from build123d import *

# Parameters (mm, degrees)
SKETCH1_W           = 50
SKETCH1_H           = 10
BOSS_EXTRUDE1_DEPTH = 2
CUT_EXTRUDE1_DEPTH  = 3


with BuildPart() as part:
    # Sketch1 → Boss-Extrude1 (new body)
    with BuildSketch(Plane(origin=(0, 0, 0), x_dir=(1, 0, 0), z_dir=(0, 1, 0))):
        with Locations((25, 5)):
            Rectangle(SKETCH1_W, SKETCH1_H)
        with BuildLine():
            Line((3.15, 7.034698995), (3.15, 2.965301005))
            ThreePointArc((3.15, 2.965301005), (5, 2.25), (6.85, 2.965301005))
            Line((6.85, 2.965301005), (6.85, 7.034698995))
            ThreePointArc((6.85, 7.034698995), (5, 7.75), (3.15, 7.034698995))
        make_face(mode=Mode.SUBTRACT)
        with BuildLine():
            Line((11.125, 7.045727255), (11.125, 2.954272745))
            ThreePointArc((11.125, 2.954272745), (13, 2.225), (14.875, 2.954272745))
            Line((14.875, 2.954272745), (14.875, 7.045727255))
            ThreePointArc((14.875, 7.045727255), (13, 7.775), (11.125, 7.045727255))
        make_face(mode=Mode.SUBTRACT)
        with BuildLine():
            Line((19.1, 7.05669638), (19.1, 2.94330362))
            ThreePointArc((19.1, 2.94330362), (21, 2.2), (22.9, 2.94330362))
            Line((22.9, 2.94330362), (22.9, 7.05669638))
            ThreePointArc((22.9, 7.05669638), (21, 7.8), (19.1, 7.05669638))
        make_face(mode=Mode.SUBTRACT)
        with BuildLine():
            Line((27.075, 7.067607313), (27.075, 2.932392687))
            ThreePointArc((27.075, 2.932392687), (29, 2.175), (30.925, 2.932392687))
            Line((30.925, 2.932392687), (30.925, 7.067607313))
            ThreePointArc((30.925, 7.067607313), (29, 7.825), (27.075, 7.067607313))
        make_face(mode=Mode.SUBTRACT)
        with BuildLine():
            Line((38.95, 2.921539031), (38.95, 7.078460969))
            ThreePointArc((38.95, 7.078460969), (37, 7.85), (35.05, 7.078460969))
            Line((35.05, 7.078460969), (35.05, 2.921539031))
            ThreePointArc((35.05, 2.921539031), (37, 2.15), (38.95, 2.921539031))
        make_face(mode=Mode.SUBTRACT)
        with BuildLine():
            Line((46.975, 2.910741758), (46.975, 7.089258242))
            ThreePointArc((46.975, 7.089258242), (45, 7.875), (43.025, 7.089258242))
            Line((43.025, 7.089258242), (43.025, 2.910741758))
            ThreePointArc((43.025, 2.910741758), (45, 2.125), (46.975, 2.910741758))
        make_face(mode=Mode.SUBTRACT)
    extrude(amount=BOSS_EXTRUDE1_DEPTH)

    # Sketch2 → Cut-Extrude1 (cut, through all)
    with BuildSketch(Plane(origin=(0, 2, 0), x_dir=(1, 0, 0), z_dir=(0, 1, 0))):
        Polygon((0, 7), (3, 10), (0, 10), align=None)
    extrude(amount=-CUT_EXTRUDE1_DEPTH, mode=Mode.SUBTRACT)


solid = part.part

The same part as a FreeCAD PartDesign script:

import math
import FreeCAD as App
import Part
import Sketcher


def add_polygon(sketch, points):
    """Adds a closed chain of lines whose ends are joined by coincident constraints."""
    first, n = sketch.GeometryCount, len(points)
    for a, b in zip(points, points[1:] + points[:1]):
        sketch.addGeometry(Part.LineSegment(App.Vector(*a, 0), App.Vector(*b, 0)), False)
    for i in range(n):
        sketch.addConstraint(Sketcher.Constraint("Coincident", first + i, 2, first + (i + 1) % n, 1))

doc = App.newDocument("Part")
body = doc.addObject("PartDesign::Body", "Body")

# Sketch on XZ plane
sketch1 = doc.addObject("Sketcher::SketchObject", "Sketch")
body.addObject(sketch1)
sketch1.AttachmentSupport = (doc.XZ_Plane, [""])
sketch1.MapMode = "FlatFace"
add_polygon(sketch1, [(0, -10), (0, 0), (50, 0), (50, -10)])  # lines 0-3
sketch1.addGeometry(Part.LineSegment(App.Vector(27.075, -2.932393, 0), App.Vector(27.075, -7.067607, 0)), False)  # 4
sketch1.addGeometry(Part.ArcOfCircle(Part.Circle(App.Vector(29, -5, 0), App.Vector(0, 0, 1), 2.825), math.radians(-132.954388), math.radians(-47.045612)), False)  # 5
sketch1.addGeometry(Part.LineSegment(App.Vector(30.925, -7.067607, 0), App.Vector(30.925, -2.932393, 0)), False)  # 6
sketch1.addGeometry(Part.ArcOfCircle(Part.Circle(App.Vector(29, -5, 0), App.Vector(0, 0, 1), 2.825), math.radians(47.045612), math.radians(132.954388)), False)  # 7
sketch1.addGeometry(Part.LineSegment(App.Vector(3.15, -2.965301, 0), App.Vector(3.15, -7.034699, 0)), False)  # 8
sketch1.addGeometry(Part.ArcOfCircle(Part.Circle(App.Vector(5, -5, 0), App.Vector(0, 0, 1), 2.75), math.radians(-132.277908), math.radians(-47.722092)), False)  # 9
sketch1.addGeometry(Part.LineSegment(App.Vector(6.85, -7.034699, 0), App.Vector(6.85, -2.965301, 0)), False)  # 10
sketch1.addGeometry(Part.ArcOfCircle(Part.Circle(App.Vector(5, -5, 0), App.Vector(0, 0, 1), 2.75), math.radians(47.722092), math.radians(132.277908)), False)  # 11
sketch1.addGeometry(Part.LineSegment(App.Vector(11.125, -2.954273, 0), App.Vector(11.125, -7.045727, 0)), False)  # 12
sketch1.addGeometry(Part.ArcOfCircle(Part.Circle(App.Vector(13, -5, 0), App.Vector(0, 0, 1), 2.775), math.radians(-132.506642), math.radians(-47.493358)), False)  # 13
sketch1.addGeometry(Part.LineSegment(App.Vector(14.875, -7.045727, 0), App.Vector(14.875, -2.954273, 0)), False)  # 14
sketch1.addGeometry(Part.ArcOfCircle(Part.Circle(App.Vector(13, -5, 0), App.Vector(0, 0, 1), 2.775), math.radians(47.493358), math.radians(132.506642)), False)  # 15
sketch1.addGeometry(Part.LineSegment(App.Vector(19.1, -2.943304, 0), App.Vector(19.1, -7.056696, 0)), False)  # 16
sketch1.addGeometry(Part.ArcOfCircle(Part.Circle(App.Vector(21, -5, 0), App.Vector(0, 0, 1), 2.8), math.radians(-132.73211), math.radians(-47.26789)), False)  # 17
sketch1.addGeometry(Part.LineSegment(App.Vector(22.9, -7.056696, 0), App.Vector(22.9, -2.943304, 0)), False)  # 18
sketch1.addGeometry(Part.ArcOfCircle(Part.Circle(App.Vector(21, -5, 0), App.Vector(0, 0, 1), 2.8), math.radians(47.26789), math.radians(132.73211)), False)  # 19
sketch1.addGeometry(Part.LineSegment(App.Vector(38.95, -7.078461, 0), App.Vector(38.95, -2.921539, 0)), False)  # 20
sketch1.addGeometry(Part.ArcOfCircle(Part.Circle(App.Vector(37, -5, 0), App.Vector(0, 0, 1), 2.85), math.radians(46.826449), math.radians(133.173551)), False)  # 21
sketch1.addGeometry(Part.LineSegment(App.Vector(35.05, -2.921539, 0), App.Vector(35.05, -7.078461, 0)), False)  # 22
sketch1.addGeometry(Part.ArcOfCircle(Part.Circle(App.Vector(37, -5, 0), App.Vector(0, 0, 1), 2.85), math.radians(-133.173551), math.radians(-46.826449)), False)  # 23
sketch1.addGeometry(Part.LineSegment(App.Vector(46.975, -7.089258, 0), App.Vector(46.975, -2.910742, 0)), False)  # 24
sketch1.addGeometry(Part.ArcOfCircle(Part.Circle(App.Vector(45, -5, 0), App.Vector(0, 0, 1), 2.875), math.radians(46.610329), math.radians(133.389671)), False)  # 25
sketch1.addGeometry(Part.LineSegment(App.Vector(43.025, -2.910742, 0), App.Vector(43.025, -7.089258, 0)), False)  # 26
sketch1.addGeometry(Part.ArcOfCircle(Part.Circle(App.Vector(45, -5, 0), App.Vector(0, 0, 1), 2.875), math.radians(-133.389671), math.radians(-46.610329)), False)  # 27
sketch1.addConstraint(Sketcher.Constraint("Coincident", 4, 2, 5, 1))
sketch1.addConstraint(Sketcher.Constraint("Coincident", 5, 2, 6, 1))
sketch1.addConstraint(Sketcher.Constraint("Coincident", 6, 2, 7, 1))
sketch1.addConstraint(Sketcher.Constraint("Coincident", 7, 2, 4, 1))
sketch1.addConstraint(Sketcher.Constraint("Coincident", 8, 2, 9, 1))
sketch1.addConstraint(Sketcher.Constraint("Coincident", 9, 2, 10, 1))
sketch1.addConstraint(Sketcher.Constraint("Coincident", 10, 2, 11, 1))
sketch1.addConstraint(Sketcher.Constraint("Coincident", 11, 2, 8, 1))
sketch1.addConstraint(Sketcher.Constraint("Coincident", 12, 2, 13, 1))
sketch1.addConstraint(Sketcher.Constraint("Coincident", 13, 2, 14, 1))
sketch1.addConstraint(Sketcher.Constraint("Coincident", 14, 2, 15, 1))
sketch1.addConstraint(Sketcher.Constraint("Coincident", 15, 2, 12, 1))
sketch1.addConstraint(Sketcher.Constraint("Coincident", 16, 2, 17, 1))
sketch1.addConstraint(Sketcher.Constraint("Coincident", 17, 2, 18, 1))
sketch1.addConstraint(Sketcher.Constraint("Coincident", 18, 2, 19, 1))
sketch1.addConstraint(Sketcher.Constraint("Coincident", 19, 2, 16, 1))
sketch1.addConstraint(Sketcher.Constraint("Coincident", 20, 2, 21, 1))
sketch1.addConstraint(Sketcher.Constraint("Coincident", 21, 2, 22, 1))
sketch1.addConstraint(Sketcher.Constraint("Coincident", 22, 2, 23, 1))
sketch1.addConstraint(Sketcher.Constraint("Coincident", 23, 2, 20, 1))
sketch1.addConstraint(Sketcher.Constraint("Coincident", 24, 2, 25, 1))
sketch1.addConstraint(Sketcher.Constraint("Coincident", 25, 2, 26, 1))
sketch1.addConstraint(Sketcher.Constraint("Coincident", 26, 2, 27, 1))
sketch1.addConstraint(Sketcher.Constraint("Coincident", 27, 2, 24, 1))
sketch1.addConstraint(Sketcher.Constraint("Vertical", 0))
sketch1.addConstraint(Sketcher.Constraint("Horizontal", 1))
sketch1.addConstraint(Sketcher.Constraint("Vertical", 2))
sketch1.addConstraint(Sketcher.Constraint("Horizontal", 3))
sketch1.addConstraint(Sketcher.Constraint("Vertical", 4))
sketch1.addConstraint(Sketcher.Constraint("Vertical", 6))
sketch1.addConstraint(Sketcher.Constraint("Vertical", 8))
sketch1.addConstraint(Sketcher.Constraint("Vertical", 10))
sketch1.addConstraint(Sketcher.Constraint("Vertical", 12))
sketch1.addConstraint(Sketcher.Constraint("Vertical", 14))
sketch1.addConstraint(Sketcher.Constraint("Vertical", 16))
sketch1.addConstraint(Sketcher.Constraint("Vertical", 18))
sketch1.addConstraint(Sketcher.Constraint("Vertical", 20))
sketch1.addConstraint(Sketcher.Constraint("Vertical", 22))
sketch1.addConstraint(Sketcher.Constraint("Vertical", 24))
sketch1.addConstraint(Sketcher.Constraint("Vertical", 26))
sketch1.addConstraint(Sketcher.Constraint("Coincident", 0, 2, -1, 1))
sketch1.addConstraint(Sketcher.Constraint("Coincident", 7, 3, 5, 3))
sketch1.addConstraint(Sketcher.Constraint("Coincident", 11, 3, 9, 3))
sketch1.addConstraint(Sketcher.Constraint("Coincident", 15, 3, 13, 3))
sketch1.addConstraint(Sketcher.Constraint("Coincident", 19, 3, 17, 3))
sketch1.addConstraint(Sketcher.Constraint("Coincident", 23, 3, 21, 3))
sketch1.addConstraint(Sketcher.Constraint("Coincident", 27, 3, 25, 3))
sketch1.addConstraint(Sketcher.Constraint("Equal", 5, 7))
sketch1.addConstraint(Sketcher.Constraint("Equal", 9, 11))
sketch1.addConstraint(Sketcher.Constraint("Equal", 13, 15))
sketch1.addConstraint(Sketcher.Constraint("Equal", 17, 19))
sketch1.addConstraint(Sketcher.Constraint("Equal", 21, 23))
sketch1.addConstraint(Sketcher.Constraint("Equal", 25, 27))
sketch1.addConstraint(Sketcher.Constraint("Horizontal", 7, 3, 9, 3))
sketch1.addConstraint(Sketcher.Constraint("Horizontal", 11, 3, 13, 3))
sketch1.addConstraint(Sketcher.Constraint("Horizontal", 15, 3, 17, 3))
sketch1.addConstraint(Sketcher.Constraint("Horizontal", 19, 3, 21, 3))
sketch1.addConstraint(Sketcher.Constraint("Horizontal", 23, 3, 25, 3))
sketch1.addConstraint(Sketcher.Constraint("Horizontal", 4, 2, 5, 2))
sketch1.addConstraint(Sketcher.Constraint("Horizontal", 8, 2, 9, 2))
sketch1.addConstraint(Sketcher.Constraint("Horizontal", 12, 2, 13, 2))
sketch1.addConstraint(Sketcher.Constraint("Horizontal", 16, 2, 17, 2))
sketch1.addConstraint(Sketcher.Constraint("Horizontal", 20, 2, 21, 2))
sketch1.addConstraint(Sketcher.Constraint("Horizontal", 24, 2, 25, 2))
sketch1.addConstraint(Sketcher.Constraint("Radius", 17, 2.8))
sketch1.addConstraint(Sketcher.Constraint("DistanceX", 1, 1, 1, 2, 50.0))
sketch1.addConstraint(Sketcher.Constraint("DistanceY", 0, 1, 0, 2, 10.0))
sketch1.addConstraint(Sketcher.Constraint("Radius", 9, 2.75))
sketch1.addConstraint(Sketcher.Constraint("Radius", 21, 2.85))
sketch1.addConstraint(Sketcher.Constraint("DistanceX", -1, 1, 5, 3, 29.0))
sketch1.addConstraint(Sketcher.Constraint("DistanceY", 5, 3, -1, 1, 5.0))
sketch1.addConstraint(Sketcher.Constraint("DistanceX", -1, 1, 9, 3, 5.0))
sketch1.addConstraint(Sketcher.Constraint("DistanceX", -1, 1, 13, 3, 13.0))
sketch1.addConstraint(Sketcher.Constraint("DistanceX", -1, 1, 17, 3, 21.0))
sketch1.addConstraint(Sketcher.Constraint("DistanceX", -1, 1, 21, 3, 37.0))
sketch1.addConstraint(Sketcher.Constraint("DistanceX", -1, 1, 25, 3, 45.0))
sketch1.addConstraint(Sketcher.Constraint("Radius", 5, 2.825))
sketch1.addConstraint(Sketcher.Constraint("Radius", 13, 2.775))
sketch1.addConstraint(Sketcher.Constraint("Radius", 25, 2.875))
sketch1.addConstraint(Sketcher.Constraint("DistanceX", -1, 1, 16, 2, 19.1))
sketch1.addConstraint(Sketcher.Constraint("DistanceX", 8, 2, 9, 2, 3.7))
sketch1.addConstraint(Sketcher.Constraint("DistanceX", 21, 2, 20, 2, 3.9))
sketch1.addConstraint(Sketcher.Constraint("DistanceX", 4, 2, 5, 2, 3.85))
sketch1.addConstraint(Sketcher.Constraint("DistanceX", 12, 2, 13, 2, 3.75))
sketch1.addConstraint(Sketcher.Constraint("DistanceX", 25, 2, 24, 2, 3.95))
pad1 = doc.addObject("PartDesign::Pad", "Pad")
body.addObject(pad1)
pad1.Profile = sketch1
pad1.Length = 2
pad1.Reversed = True

# Sketch on XZ plane
sketch2 = doc.addObject("Sketcher::SketchObject", "Sketch001")
body.addObject(sketch2)
sketch2.AttachmentSupport = (doc.XZ_Plane, [""])
sketch2.MapMode = "FlatFace"
sketch2.AttachmentOffset = App.Placement(App.Vector(0, 0, -2), App.Rotation())
add_polygon(sketch2, [(0, -7), (3, -10), (0, -10)])  # lines 0-2
sketch2.addConstraint(Sketcher.Constraint("Horizontal", 1))
sketch2.addConstraint(Sketcher.Constraint("Vertical", 2))
sketch2.addConstraint(Sketcher.Constraint("PointOnObject", 1, 2, -2))
sketch2.addConstraint(Sketcher.Constraint("Equal", 1, 2))
sketch2.addConstraint(Sketcher.Constraint("DistanceX", 1, 2, 1, 1, 3.0))
sketch2.addConstraint(Sketcher.Constraint("DistanceY", 0, 2, -1, 1, 10.0))
pocket1 = doc.addObject("PartDesign::Pocket", "Pocket")
body.addObject(pocket1)
pocket1.Profile = sketch2
pocket1.Type = "ThroughAll"
pocket1.Reversed = True

doc.recompute()
